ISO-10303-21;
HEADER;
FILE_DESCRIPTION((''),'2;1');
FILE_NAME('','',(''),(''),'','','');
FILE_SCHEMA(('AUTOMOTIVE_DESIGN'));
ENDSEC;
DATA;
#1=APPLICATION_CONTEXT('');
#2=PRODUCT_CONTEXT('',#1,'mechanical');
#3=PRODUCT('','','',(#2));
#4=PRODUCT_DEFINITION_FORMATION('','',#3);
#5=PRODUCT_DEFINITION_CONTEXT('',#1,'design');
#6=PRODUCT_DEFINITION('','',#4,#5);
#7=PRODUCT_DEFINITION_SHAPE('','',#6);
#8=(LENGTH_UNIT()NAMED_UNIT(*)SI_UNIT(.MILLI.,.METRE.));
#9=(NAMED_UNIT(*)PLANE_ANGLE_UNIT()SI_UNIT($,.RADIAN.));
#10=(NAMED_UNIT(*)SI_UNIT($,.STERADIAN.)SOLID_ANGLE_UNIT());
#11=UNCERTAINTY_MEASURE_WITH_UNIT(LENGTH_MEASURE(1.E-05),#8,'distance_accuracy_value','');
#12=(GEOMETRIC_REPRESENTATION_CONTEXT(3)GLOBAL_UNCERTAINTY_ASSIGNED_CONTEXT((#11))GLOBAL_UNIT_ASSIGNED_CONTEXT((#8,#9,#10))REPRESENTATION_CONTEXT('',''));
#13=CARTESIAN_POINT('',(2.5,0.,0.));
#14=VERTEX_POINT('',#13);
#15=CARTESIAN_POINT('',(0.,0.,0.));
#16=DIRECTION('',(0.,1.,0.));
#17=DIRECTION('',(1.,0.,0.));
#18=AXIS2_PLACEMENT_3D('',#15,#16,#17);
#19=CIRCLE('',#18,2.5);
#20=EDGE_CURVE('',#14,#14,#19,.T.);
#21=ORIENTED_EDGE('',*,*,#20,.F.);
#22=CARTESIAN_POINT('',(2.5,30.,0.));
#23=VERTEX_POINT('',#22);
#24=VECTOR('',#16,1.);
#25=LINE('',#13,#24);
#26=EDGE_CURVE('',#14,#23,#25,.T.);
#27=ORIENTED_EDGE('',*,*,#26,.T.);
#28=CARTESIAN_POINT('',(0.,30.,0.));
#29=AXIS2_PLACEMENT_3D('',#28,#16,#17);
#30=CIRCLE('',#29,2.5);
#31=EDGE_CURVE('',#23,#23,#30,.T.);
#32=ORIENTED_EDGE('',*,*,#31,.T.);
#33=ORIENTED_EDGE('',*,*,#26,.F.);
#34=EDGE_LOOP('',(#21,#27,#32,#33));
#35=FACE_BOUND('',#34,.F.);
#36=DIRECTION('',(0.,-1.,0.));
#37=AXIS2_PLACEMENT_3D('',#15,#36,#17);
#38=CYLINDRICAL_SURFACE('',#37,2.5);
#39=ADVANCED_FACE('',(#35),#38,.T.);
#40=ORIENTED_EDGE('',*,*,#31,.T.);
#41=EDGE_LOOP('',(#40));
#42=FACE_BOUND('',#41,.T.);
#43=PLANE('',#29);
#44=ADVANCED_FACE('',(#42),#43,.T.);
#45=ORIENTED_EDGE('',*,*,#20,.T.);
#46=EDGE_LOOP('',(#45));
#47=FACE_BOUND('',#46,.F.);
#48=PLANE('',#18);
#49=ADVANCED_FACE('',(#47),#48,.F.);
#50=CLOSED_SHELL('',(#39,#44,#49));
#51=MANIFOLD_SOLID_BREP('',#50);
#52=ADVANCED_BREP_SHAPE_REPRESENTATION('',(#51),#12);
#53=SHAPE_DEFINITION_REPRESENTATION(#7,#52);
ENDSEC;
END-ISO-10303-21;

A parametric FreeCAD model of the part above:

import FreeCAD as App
import Part
import Sketcher
from FreeCAD import Vector
Q = App.Units.Quantity

doc = App.newDocument("Part")
body = doc.addObject("PartDesign::Body", "Body")

# Sketch on XZ plane
sketch1 = body.newObject("Sketcher::SketchObject", "Sketch")
sketch1.AttachmentSupport = (doc.getObject("XZ_Plane"), [""])
sketch1.MapMode = "FlatFace"
sketch1.addGeometry(Part.Circle(Vector(0, 0, 0), Vector(0, 0, 1), 2.5), False)
sketch1.addConstraint(Sketcher.Constraint("Coincident", 0, 3, -1, 1))
sketch1.addConstraint(Sketcher.Constraint("Diameter", 0, Q("5 mm")))
pad1 = body.newObject("PartDesign::Pad", "Pad")
pad1.Profile = sketch1
pad1.Length = 30
pad1.Reversed = True

doc.recompute()
